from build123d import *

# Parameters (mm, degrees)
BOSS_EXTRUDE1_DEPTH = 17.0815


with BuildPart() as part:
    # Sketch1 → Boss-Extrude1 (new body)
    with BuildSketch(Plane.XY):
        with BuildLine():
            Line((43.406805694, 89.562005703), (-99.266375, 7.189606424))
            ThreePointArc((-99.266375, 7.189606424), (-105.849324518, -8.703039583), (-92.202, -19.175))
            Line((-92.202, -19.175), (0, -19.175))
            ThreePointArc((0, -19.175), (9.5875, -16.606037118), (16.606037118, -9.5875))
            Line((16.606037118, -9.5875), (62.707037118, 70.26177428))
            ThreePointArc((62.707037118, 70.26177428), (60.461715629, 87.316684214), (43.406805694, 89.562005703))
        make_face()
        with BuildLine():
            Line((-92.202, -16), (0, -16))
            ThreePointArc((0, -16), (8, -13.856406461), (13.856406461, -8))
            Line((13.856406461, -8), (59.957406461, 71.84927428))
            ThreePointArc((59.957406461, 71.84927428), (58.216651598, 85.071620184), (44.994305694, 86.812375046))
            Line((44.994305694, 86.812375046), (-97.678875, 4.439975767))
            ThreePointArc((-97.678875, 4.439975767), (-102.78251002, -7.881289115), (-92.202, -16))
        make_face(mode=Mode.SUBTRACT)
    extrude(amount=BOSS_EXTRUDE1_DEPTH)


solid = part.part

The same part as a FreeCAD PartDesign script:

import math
import FreeCAD as App
import Part
import Sketcher
from FreeCAD import Vector
Q = App.Units.Quantity

doc = App.newDocument("Part")
params = doc.addObject("Spreadsheet::Sheet", "Params")
for row, (alias, value) in enumerate([
    ("sketch1_radius", "16 mm"),
    ("pad1_length", "17.0815 mm"),
], start=1):
    params.set(f"A{row}", alias)
    params.set(f"B{row}", "=" + value)
    params.setAlias(f"B{row}", alias)

body = doc.addObject("PartDesign::Body", "Body")

# Sketch on XY plane
sketch1 = doc.addObject("Sketcher::SketchObject", "Sketch")
body.addObject(sketch1)
sketch1.AttachmentSupport = (doc.XY_Plane, [""])
sketch1.MapMode = "FlatFace"
sketch1.addGeometry(Part.LineSegment(Vector(43, 90, 0), Vector(-99, 7, 0)), False)
sketch1.addGeometry(Part.ArcOfCircle(Part.Circle(Vector(-92, -5, 0), Vector(0, 0, 1), 14), math.radians(120), math.radians(270)), False)
sketch1.addGeometry(Part.LineSegment(Vector(-92, -19, 0), Vector(0, -19, 0)), False)
sketch1.addGeometry(Part.ArcOfCircle(Part.Circle(Vector(0, 0, 0), Vector(0, 0, 1), 19), math.radians(-90), math.radians(-30)), False)
sketch1.addGeometry(Part.LineSegment(Vector(17, -10, 0), Vector(63, 70, 0)), False)
sketch1.addGeometry(Part.ArcOfCircle(Part.Circle(Vector(50, 77, 0), Vector(0, 0, 1), 14), math.radians(-30), math.radians(120)), False)
sketch1.addGeometry(Part.LineSegment(Vector(0, -16, 0), Vector(-92, -16, 0)), False)
sketch1.addGeometry(Part.ArcOfCircle(Part.Circle(Vector(-92, -5, 0), Vector(0, 0, 1), 11), math.radians(120), math.radians(270)), False)
sketch1.addGeometry(Part.LineSegment(Vector(-98, 4, 0), Vector(45, 87, 0)), False)
sketch1.addGeometry(Part.ArcOfCircle(Part.Circle(Vector(50, 77, 0), Vector(0, 0, 1), 11), math.radians(-30), math.radians(120)), False)
sketch1.addGeometry(Part.LineSegment(Vector(60, 72, 0), Vector(14, -8, 0)), False)
sketch1.addGeometry(Part.ArcOfCircle(Part.Circle(Vector(0, 0, 0), Vector(0, 0, 1), 16), math.radians(-90), math.radians(-30)), False)
sketch1.addConstraint(Sketcher.Constraint("Tangent", 0, 2, 1, 1))
sketch1.addConstraint(Sketcher.Constraint("Tangent", 1, 2, 2, 1))
sketch1.addConstraint(Sketcher.Constraint("Tangent", 2, 2, 3, 1))
sketch1.addConstraint(Sketcher.Constraint("Tangent", 3, 2, 4, 1))
sketch1.addConstraint(Sketcher.Constraint("Tangent", 4, 2, 5, 1))
sketch1.addConstraint(Sketcher.Constraint("Tangent", 5, 2, 0, 1))
sketch1.addConstraint(Sketcher.Constraint("Tangent", 6, 2, 7, 2))
sketch1.addConstraint(Sketcher.Constraint("Tangent", 7, 1, 8, 1))
sketch1.addConstraint(Sketcher.Constraint("Tangent", 8, 2, 9, 2))
sketch1.addConstraint(Sketcher.Constraint("Tangent", 9, 1, 10, 1))
sketch1.addConstraint(Sketcher.Constraint("Tangent", 10, 2, 11, 2))
sketch1.addConstraint(Sketcher.Constraint("Tangent", 11, 1, 6, 1))
sketch1.addConstraint(Sketcher.Constraint("Horizontal", 2))
sketch1.addConstraint(Sketcher.Constraint("Horizontal", 6))
sketch1.addConstraint(Sketcher.Constraint("Coincident", 3, 3, -1, 1))
sketch1.addConstraint(Sketcher.Constraint("Coincident", 11, 3, -1, 1))
sketch1.addConstraint(Sketcher.Constraint("Coincident", 7, 3, 1, 3))
sketch1.addConstraint(Sketcher.Constraint("Coincident", 9, 3, 5, 3))
sketch1.addConstraint(Sketcher.Constraint("Equal", 1, 5))
sketch1.addConstraint(Sketcher.Constraint("Equal", 7, 9))
sketch1.addConstraint(Sketcher.Constraint("Radius", 11, 16.0))
sketch1.addConstraint(Sketcher.Constraint("Angle", 0, Q("-150 deg")))
sketch1.addConstraint(Sketcher.Constraint("Angle", 4, Q("60 deg")))
sketch1.addConstraint(Sketcher.Constraint("Radius", 3, 19.175))
sketch1.addConstraint(Sketcher.Constraint("DistanceX", 2, 1, 2, 2, 92.202))
sketch1.addConstraint(Sketcher.Constraint("Radius", 1, 14.12875))
sketch1.setExpression("Constraints[20]", "Params.sketch1_radius")
pad1 = doc.addObject("PartDesign::Pad", "Pad")
body.addObject(pad1)
pad1.Profile = sketch1
pad1.setExpression("Length", "Params.pad1_length")

doc.recompute()
